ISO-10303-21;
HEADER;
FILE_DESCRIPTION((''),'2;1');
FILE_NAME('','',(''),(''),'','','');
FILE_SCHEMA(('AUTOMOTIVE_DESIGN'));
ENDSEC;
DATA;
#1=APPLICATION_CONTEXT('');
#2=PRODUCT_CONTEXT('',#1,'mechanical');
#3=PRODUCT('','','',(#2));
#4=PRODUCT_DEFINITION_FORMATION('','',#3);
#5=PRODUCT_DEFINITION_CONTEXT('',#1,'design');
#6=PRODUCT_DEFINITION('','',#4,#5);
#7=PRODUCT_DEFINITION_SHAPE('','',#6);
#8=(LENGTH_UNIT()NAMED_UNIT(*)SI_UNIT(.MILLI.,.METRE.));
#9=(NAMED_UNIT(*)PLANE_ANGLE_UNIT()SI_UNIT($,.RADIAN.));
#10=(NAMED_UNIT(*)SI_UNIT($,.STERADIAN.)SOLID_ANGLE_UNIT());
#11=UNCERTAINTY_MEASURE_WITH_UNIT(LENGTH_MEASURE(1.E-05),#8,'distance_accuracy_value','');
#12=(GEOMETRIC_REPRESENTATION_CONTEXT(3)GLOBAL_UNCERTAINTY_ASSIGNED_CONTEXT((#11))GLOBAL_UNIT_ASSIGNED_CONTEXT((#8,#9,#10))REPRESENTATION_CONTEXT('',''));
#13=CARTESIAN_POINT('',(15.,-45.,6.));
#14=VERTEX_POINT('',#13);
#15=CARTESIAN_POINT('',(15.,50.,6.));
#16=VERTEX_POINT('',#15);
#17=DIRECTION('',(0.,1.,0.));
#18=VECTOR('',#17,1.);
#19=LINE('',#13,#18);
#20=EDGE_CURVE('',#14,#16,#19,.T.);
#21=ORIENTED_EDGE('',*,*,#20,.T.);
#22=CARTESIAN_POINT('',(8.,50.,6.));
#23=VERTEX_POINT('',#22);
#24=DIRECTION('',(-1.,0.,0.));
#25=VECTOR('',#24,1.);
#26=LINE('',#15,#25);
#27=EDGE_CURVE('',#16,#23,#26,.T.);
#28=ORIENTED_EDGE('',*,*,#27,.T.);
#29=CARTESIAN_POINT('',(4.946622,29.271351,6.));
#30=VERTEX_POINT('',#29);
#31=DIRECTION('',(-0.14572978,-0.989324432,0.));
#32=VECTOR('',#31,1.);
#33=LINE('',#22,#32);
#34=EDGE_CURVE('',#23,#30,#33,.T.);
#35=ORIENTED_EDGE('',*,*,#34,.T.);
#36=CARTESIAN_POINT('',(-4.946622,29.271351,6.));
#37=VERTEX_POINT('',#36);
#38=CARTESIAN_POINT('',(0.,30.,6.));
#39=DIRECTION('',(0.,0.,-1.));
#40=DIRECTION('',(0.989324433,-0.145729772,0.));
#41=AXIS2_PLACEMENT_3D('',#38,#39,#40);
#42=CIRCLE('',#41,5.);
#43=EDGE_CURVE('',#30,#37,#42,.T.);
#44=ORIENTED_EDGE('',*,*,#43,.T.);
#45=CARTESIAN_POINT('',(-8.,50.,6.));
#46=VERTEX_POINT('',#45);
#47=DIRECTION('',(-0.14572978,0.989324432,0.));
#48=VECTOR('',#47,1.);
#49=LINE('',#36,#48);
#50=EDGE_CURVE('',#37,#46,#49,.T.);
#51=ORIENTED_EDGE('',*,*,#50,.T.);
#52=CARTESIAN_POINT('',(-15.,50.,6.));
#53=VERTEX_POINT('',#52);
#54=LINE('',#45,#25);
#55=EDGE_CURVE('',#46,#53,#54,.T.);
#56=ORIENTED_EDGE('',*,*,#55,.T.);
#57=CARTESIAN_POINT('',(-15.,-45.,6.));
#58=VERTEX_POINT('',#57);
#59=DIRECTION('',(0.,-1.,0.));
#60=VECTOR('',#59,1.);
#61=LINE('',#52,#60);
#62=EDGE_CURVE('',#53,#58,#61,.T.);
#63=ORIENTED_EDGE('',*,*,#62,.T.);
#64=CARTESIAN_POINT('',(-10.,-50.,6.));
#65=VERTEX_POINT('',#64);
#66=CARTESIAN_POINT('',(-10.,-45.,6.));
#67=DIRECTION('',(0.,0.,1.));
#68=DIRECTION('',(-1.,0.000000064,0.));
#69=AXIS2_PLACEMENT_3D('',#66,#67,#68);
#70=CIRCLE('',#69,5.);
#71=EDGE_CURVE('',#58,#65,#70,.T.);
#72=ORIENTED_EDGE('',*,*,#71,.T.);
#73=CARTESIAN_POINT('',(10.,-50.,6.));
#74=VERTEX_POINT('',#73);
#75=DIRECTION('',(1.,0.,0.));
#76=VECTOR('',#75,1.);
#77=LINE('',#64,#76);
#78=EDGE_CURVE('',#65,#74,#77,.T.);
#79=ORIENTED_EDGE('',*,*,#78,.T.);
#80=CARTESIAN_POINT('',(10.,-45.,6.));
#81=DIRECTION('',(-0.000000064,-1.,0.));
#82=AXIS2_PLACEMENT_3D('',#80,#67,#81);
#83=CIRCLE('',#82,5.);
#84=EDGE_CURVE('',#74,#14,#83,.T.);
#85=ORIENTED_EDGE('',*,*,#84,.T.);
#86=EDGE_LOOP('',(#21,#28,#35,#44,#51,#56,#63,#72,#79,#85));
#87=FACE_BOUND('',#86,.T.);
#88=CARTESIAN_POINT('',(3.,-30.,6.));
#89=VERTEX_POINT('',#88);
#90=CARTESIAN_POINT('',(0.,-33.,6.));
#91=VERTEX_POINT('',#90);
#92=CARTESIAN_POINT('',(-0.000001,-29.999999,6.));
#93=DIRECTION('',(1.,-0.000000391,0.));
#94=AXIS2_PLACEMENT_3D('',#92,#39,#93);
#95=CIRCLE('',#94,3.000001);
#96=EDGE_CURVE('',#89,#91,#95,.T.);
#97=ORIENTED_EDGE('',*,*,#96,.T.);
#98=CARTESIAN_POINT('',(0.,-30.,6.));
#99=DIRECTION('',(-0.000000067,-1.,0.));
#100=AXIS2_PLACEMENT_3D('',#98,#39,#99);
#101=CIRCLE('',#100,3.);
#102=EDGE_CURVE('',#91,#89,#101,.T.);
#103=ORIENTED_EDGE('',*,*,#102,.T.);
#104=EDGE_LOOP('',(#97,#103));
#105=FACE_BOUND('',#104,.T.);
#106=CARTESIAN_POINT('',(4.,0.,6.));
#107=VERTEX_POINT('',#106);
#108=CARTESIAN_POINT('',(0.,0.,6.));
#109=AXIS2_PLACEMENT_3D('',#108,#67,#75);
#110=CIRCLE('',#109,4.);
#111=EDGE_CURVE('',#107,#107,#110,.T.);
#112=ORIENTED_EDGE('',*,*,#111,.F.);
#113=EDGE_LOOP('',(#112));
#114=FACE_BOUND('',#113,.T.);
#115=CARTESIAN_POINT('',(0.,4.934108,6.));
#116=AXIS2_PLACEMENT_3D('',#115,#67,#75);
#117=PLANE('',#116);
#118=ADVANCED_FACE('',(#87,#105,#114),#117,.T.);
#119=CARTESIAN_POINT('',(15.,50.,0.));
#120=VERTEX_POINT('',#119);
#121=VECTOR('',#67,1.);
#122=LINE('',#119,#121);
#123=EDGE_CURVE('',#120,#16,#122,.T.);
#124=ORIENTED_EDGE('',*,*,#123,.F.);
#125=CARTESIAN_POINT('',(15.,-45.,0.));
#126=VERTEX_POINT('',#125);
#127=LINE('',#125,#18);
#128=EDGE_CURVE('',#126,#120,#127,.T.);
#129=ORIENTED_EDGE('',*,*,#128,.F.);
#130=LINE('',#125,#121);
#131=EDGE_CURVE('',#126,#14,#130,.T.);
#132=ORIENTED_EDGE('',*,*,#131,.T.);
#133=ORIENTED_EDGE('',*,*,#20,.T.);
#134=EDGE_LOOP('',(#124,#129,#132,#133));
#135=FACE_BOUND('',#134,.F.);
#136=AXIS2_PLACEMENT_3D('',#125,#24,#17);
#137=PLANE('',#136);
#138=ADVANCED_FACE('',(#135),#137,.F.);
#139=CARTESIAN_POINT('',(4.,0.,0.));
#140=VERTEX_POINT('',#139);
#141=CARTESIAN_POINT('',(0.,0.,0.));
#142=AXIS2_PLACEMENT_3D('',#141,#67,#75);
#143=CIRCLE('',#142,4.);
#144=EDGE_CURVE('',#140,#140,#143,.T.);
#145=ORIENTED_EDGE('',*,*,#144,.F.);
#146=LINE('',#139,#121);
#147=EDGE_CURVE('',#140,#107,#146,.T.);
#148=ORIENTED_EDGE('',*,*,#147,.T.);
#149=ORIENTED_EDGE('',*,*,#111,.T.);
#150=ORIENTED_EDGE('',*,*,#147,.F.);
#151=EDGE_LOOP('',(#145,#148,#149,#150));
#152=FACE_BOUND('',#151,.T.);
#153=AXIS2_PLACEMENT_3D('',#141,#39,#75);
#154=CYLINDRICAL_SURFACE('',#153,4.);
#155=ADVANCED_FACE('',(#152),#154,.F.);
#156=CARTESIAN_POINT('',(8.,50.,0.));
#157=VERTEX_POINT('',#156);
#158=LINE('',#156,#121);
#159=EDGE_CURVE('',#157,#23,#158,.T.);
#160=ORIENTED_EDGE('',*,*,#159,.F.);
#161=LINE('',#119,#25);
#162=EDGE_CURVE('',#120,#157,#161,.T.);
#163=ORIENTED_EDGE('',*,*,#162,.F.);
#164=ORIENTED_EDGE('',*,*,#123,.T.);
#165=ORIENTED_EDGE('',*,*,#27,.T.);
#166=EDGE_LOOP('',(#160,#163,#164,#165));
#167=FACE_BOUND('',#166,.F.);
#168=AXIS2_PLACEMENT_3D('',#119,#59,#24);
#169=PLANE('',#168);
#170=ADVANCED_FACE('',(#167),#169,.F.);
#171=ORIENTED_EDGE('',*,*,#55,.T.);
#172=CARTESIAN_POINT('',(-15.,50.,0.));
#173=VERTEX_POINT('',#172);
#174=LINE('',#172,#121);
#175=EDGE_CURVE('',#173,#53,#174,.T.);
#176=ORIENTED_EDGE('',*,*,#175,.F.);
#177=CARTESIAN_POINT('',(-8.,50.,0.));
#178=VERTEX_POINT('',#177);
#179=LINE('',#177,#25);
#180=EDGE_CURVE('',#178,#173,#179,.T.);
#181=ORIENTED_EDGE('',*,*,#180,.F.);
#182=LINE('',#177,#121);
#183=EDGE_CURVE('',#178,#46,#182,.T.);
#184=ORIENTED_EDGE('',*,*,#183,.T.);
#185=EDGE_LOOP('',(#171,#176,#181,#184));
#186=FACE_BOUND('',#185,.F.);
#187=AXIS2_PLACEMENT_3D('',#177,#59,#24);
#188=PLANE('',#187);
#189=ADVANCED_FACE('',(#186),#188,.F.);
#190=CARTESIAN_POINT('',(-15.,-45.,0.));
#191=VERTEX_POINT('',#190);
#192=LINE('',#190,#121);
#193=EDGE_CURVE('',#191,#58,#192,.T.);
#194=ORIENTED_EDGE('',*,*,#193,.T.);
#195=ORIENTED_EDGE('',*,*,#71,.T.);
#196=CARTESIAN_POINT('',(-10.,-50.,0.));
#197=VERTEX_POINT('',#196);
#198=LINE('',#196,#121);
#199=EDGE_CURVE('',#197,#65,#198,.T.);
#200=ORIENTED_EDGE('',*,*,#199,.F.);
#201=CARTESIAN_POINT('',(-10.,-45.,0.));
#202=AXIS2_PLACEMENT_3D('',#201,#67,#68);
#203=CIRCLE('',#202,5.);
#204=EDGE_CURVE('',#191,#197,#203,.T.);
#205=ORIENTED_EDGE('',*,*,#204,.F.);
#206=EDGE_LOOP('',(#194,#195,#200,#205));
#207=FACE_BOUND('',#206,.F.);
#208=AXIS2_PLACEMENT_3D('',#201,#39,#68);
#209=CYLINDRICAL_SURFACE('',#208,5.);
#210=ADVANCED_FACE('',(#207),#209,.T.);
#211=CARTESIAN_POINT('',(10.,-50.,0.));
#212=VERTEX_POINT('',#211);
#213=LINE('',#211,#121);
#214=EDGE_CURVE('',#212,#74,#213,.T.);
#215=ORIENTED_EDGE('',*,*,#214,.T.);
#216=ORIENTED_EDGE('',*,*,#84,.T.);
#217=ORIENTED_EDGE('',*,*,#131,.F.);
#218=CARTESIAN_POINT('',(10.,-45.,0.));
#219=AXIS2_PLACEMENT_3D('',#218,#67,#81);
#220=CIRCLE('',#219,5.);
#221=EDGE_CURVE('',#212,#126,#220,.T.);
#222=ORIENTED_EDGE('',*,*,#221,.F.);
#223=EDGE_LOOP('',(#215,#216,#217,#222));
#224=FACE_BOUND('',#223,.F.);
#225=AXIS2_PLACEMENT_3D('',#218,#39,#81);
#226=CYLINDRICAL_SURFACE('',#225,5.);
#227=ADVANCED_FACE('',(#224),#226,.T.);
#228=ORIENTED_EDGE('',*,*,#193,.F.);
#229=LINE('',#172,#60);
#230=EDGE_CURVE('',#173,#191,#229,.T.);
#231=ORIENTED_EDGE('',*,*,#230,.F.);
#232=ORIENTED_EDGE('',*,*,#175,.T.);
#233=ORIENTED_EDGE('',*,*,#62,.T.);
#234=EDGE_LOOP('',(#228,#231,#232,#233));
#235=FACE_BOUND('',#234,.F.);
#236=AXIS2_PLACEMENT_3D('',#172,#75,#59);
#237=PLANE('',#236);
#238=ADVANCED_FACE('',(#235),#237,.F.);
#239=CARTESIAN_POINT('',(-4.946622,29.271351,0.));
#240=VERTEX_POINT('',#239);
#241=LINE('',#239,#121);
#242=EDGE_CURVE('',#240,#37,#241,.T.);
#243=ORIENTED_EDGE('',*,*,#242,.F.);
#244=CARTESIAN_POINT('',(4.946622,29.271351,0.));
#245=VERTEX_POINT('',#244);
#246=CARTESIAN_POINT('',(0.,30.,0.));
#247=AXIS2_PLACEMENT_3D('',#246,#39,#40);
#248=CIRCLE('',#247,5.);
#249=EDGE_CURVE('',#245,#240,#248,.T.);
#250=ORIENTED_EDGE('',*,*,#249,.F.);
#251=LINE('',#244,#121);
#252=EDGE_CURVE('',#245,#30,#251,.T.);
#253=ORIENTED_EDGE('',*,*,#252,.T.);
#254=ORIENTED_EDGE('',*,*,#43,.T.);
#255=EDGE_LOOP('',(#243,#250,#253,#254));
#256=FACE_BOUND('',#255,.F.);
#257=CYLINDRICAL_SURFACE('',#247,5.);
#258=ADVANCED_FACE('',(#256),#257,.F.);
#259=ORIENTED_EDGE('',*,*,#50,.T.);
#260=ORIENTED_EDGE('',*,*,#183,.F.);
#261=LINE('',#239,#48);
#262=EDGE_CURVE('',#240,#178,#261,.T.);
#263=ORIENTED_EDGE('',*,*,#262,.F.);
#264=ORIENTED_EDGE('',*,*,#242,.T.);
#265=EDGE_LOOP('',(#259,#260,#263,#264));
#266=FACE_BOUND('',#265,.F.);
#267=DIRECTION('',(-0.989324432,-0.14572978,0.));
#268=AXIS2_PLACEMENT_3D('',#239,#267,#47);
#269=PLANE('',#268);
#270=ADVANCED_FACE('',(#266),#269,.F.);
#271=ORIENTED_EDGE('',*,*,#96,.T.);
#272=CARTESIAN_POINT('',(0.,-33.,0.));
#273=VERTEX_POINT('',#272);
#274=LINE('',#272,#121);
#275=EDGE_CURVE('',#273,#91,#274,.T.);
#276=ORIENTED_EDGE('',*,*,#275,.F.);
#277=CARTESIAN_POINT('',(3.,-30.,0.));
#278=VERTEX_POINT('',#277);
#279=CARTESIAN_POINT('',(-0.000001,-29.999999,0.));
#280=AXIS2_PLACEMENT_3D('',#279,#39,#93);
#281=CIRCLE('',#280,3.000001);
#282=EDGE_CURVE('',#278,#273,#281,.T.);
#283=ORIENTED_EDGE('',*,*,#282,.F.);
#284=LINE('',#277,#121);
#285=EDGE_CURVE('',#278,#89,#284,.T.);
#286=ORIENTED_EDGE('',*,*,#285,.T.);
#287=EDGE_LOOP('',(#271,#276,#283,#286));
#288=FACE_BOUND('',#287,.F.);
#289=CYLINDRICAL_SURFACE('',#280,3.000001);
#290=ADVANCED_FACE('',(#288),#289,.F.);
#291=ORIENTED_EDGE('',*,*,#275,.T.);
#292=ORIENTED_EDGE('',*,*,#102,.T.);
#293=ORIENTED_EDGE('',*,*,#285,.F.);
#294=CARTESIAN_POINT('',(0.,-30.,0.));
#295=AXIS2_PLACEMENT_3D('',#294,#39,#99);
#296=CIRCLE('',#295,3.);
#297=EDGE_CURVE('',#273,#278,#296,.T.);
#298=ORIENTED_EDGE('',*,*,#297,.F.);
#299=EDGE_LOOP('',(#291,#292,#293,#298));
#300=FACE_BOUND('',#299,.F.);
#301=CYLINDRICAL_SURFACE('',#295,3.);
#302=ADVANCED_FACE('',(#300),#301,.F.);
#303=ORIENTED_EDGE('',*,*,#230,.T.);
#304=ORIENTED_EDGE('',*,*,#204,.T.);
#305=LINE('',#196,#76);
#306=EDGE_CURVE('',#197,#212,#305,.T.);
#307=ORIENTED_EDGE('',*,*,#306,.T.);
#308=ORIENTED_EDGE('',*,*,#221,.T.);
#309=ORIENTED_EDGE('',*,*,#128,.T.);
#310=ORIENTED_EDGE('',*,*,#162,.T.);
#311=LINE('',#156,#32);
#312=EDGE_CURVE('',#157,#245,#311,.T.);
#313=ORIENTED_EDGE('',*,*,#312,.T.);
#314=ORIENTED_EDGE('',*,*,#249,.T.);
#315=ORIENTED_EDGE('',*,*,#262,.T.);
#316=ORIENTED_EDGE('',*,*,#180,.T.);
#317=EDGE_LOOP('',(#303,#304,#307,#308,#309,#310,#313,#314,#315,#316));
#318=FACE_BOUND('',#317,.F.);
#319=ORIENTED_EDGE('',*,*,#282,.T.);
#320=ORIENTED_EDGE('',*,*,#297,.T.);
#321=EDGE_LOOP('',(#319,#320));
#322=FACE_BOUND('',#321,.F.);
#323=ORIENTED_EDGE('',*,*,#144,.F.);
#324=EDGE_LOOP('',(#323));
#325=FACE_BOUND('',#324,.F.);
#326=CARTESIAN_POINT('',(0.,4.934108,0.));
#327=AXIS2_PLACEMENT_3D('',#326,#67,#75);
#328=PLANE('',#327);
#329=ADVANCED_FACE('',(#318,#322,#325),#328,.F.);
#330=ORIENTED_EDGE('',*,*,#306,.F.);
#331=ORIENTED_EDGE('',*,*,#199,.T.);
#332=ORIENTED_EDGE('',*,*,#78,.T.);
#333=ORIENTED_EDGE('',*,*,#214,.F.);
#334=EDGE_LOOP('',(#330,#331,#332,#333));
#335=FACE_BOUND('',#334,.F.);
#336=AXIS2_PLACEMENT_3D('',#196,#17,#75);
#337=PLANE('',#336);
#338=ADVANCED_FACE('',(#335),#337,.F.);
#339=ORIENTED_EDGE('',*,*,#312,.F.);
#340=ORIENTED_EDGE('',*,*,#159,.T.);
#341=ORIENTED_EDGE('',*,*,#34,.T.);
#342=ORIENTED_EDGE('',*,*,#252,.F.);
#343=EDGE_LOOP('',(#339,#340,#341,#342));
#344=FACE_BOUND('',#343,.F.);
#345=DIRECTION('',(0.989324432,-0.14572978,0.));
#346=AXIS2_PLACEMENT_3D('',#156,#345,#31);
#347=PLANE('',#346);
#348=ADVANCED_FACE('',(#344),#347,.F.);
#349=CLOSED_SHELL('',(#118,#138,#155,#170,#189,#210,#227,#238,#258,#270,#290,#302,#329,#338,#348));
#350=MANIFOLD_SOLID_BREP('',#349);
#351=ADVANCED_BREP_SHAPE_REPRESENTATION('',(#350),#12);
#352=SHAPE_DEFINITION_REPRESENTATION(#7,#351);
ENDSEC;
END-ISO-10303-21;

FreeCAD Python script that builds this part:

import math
import FreeCAD as App
import Part
import Sketcher

V = App.Vector
Q = App.Units.Quantity

doc = App.newDocument("Part")
body = doc.addObject("PartDesign::Body", "Body")

# Sketch on XY plane
sketch1 = body.newObject("Sketcher::SketchObject", "Sketch")
sketch1.AttachmentSupport = (doc.getObject("XY_Plane"), [""])
sketch1.MapMode = "FlatFace"
sketch1.addGeometry([
    Part.LineSegment(V(-8, 50, 0), V(-15, 50, 0)),  # 0
    Part.LineSegment(V(-15, 50, 0), V(-15, -45, 0)),  # 1
    Part.ArcOfCircle(Part.Circle(V(-10, -45, 0), V(0, 0, 1), 5), math.radians(179.999996), math.radians(270.000004)),  # 2
    Part.LineSegment(V(-10, -50, 0), V(10, -50, 0)),  # 3
    Part.ArcOfCircle(Part.Circle(V(10, -45, 0), V(0, 0, 1), 5), math.radians(-90.000004), math.radians(0.000004)),  # 4
    Part.LineSegment(V(15, -45, 0), V(15, 50, 0)),  # 5
    Part.LineSegment(V(15, 50, 0), V(8, 50, 0)),  # 6
    Part.LineSegment(V(8, 50, 0), V(4.946622, 29.271351, 0)),  # 7
    Part.ArcOfCircle(Part.Circle(V(0, 30, 0), V(0, 0, 1), 5), math.radians(-171.620459), math.radians(-8.379541)),  # 8
    Part.LineSegment(V(-4.946622, 29.271351, 0), V(-8, 50, 0)),  # 9
    Part.ArcOfCircle(Part.Circle(V(0, -30, 0), V(0, 0, 1), 3), math.radians(0.000004), math.radians(269.999996)),  # 10
    Part.ArcOfCircle(Part.Circle(V(-0.000001, -29.999999, 0), V(0, 0, 1), 3.000001), math.radians(-89.999978), math.radians(-0.000022)),  # 11
    Part.Circle(V(0, 0, 0), V(0, 0, 1), 4),  # 12
], False)
sketch1.addConstraint([
    Sketcher.Constraint("Coincident", 0, 2, 1, 1),
    Sketcher.Constraint("Tangent", 1, 2, 2, 1),
    Sketcher.Constraint("Tangent", 2, 2, 3, 1),
    Sketcher.Constraint("Tangent", 3, 2, 4, 1),
    Sketcher.Constraint("Tangent", 4, 2, 5, 1),
    Sketcher.Constraint("Coincident", 5, 2, 6, 1),
    Sketcher.Constraint("Coincident", 6, 2, 7, 1),
    Sketcher.Constraint("Tangent", 7, 2, 8, 2),
    Sketcher.Constraint("Tangent", 8, 1, 9, 1),
    Sketcher.Constraint("Coincident", 9, 2, 0, 1),
    Sketcher.Constraint("Tangent", 10, 1, 11, 2),
    Sketcher.Constraint("Coincident", 11, 1, 10, 2),
    Sketcher.Constraint("Horizontal", 0),
    Sketcher.Constraint("Vertical", 1),
    Sketcher.Constraint("Horizontal", 3),
    Sketcher.Constraint("Vertical", 5),
    Sketcher.Constraint("Horizontal", 6),
    Sketcher.Constraint("Coincident", 12, 3, -1, 1),
    Sketcher.Constraint("Equal", 2, 4),
    Sketcher.Constraint("Equal", 4, 8),
    Sketcher.Constraint("Symmetric", 8, 3, 10, 3, -1, 1),
    Sketcher.Constraint("Symmetric", 0, 2, 5, 2, -2),
    Sketcher.Constraint("Symmetric", 7, 2, 8, 1, -2),
    Sketcher.Constraint("PointOnObject", 11, 1, -2),
    Sketcher.Constraint("Horizontal", 11, 3, 10, 1),
    Sketcher.Constraint("Diameter", 12, Q("8 mm")),
    Sketcher.Constraint("Radius", 2, Q("5 mm")),
    Sketcher.Constraint("Radius", 10, Q("3 mm")),
    Sketcher.Constraint("DistanceX", 0, 2, 0, 1, Q("7 mm")),
    Sketcher.Constraint("DistanceX", 3, 1, 3, 2, Q("20 mm")),
    Sketcher.Constraint("DistanceY", 1, 2, 1, 1, Q("95 mm")),
    Sketcher.Constraint("DistanceY", 2, 3, -1, 1, Q("45 mm")),
    Sketcher.Constraint("DistanceY", -1, 1, 8, 3, Q("30 mm")),
])
pad1 = body.newObject("PartDesign::Pad", "Pad")
pad1.Profile = sketch1
pad1.Length = 6

doc.recompute()
